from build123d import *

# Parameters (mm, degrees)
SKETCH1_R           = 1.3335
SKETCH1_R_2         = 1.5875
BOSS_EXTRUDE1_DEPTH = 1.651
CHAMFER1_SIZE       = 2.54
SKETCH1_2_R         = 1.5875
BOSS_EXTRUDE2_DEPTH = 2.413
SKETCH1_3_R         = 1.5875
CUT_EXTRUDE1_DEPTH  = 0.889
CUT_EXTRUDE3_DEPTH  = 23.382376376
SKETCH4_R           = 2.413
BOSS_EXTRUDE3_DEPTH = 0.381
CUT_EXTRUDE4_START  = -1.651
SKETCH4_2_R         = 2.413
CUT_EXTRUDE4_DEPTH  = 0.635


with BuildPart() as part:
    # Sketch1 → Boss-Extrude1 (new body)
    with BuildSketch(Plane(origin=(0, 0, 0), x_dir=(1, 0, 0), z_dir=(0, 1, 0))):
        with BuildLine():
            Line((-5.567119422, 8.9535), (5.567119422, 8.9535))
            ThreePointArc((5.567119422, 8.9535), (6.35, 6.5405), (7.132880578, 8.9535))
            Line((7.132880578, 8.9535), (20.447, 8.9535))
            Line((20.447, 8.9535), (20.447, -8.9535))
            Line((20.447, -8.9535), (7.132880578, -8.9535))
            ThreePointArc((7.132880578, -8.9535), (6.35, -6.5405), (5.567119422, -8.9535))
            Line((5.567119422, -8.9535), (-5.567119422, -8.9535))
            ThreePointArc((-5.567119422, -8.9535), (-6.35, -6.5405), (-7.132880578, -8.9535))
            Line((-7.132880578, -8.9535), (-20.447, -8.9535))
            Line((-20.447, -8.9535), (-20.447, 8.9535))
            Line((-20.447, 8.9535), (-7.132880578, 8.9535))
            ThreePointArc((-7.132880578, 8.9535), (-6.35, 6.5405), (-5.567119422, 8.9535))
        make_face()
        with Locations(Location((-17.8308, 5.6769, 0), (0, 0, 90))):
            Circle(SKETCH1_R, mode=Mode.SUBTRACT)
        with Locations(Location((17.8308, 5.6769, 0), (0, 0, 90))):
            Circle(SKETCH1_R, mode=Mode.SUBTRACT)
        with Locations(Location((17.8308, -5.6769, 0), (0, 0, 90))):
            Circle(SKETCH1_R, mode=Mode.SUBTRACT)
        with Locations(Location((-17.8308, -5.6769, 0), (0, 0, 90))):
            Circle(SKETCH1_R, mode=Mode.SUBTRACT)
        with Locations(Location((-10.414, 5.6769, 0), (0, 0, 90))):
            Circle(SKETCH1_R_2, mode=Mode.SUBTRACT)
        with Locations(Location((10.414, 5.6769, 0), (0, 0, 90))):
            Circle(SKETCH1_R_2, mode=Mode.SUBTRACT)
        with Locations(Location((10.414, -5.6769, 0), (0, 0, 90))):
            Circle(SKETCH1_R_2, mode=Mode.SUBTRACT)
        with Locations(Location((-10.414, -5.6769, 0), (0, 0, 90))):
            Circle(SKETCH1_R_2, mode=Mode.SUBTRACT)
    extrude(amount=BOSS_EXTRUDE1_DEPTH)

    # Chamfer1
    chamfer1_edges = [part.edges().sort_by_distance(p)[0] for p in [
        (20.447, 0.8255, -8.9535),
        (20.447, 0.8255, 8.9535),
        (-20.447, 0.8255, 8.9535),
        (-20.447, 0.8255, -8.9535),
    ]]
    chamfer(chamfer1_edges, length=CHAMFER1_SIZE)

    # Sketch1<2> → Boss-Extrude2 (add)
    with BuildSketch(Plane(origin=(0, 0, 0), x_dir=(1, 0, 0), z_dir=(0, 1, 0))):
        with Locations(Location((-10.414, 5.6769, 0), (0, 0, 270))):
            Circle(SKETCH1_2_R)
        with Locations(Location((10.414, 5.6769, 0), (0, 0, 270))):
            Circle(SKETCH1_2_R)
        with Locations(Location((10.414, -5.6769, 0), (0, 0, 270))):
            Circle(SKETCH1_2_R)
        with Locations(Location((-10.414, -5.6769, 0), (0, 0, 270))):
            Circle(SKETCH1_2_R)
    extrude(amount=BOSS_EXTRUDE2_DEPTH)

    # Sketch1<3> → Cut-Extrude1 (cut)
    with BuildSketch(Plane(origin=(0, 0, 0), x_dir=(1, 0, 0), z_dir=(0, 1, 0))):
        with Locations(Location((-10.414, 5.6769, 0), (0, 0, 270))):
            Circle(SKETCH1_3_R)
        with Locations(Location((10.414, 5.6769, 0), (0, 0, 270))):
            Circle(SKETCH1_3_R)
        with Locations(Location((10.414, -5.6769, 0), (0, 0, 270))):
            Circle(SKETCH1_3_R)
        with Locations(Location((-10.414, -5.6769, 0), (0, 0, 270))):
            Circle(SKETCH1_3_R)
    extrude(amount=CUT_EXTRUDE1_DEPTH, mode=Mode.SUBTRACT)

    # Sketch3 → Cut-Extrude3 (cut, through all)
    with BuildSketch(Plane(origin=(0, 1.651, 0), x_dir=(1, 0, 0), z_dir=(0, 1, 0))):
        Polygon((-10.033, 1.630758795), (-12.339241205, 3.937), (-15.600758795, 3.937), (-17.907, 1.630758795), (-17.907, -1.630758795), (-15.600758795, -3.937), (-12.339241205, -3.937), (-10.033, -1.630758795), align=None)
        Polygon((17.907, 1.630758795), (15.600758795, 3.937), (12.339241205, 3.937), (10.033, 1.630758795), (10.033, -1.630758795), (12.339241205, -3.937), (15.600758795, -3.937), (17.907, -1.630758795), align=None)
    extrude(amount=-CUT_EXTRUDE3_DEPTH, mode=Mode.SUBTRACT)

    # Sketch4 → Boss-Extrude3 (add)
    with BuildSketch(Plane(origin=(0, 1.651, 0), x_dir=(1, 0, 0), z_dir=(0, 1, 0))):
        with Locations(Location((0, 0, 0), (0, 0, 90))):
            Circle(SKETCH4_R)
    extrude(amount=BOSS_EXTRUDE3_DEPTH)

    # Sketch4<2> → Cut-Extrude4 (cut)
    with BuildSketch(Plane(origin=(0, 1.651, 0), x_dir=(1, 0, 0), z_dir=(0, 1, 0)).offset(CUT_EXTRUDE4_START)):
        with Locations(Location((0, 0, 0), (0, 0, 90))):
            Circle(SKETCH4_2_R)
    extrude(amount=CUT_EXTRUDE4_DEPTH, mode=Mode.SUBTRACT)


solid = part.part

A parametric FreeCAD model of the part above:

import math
import FreeCAD as App
import Part
import Sketcher
from FreeCAD import Vector
Q = App.Units.Quantity


def edges_at(feature, points):
    """Names of the edges that pass closest to the given points."""
    edges = feature.Shape.Edges
    near = lambda p: min(range(len(edges)), key=lambda i: edges[i].distToShape(Part.Vertex(*p))[0])
    return sorted({f"Edge{near(p) + 1}" for p in points})

doc = App.newDocument("Part")
body = doc.addObject("PartDesign::Body", "Body")

# Sketch on XZ plane
sketch1 = body.newObject("Sketcher::SketchObject", "Sketch")
sketch1.AttachmentSupport = (doc.getObject("XZ_Plane"), [""])
sketch1.MapMode = "FlatFace"
sketch1.addGeometry(Part.LineSegment(Vector(5.6, -9, 0), Vector(-5.6, -9, 0)), False)
sketch1.addGeometry(Part.ArcOfCircle(Part.Circle(Vector(-6.3, -7.9, 0), Vector(0, 0, 1), 1.3), math.radians(-54), math.radians(234)), False)
sketch1.addGeometry(Part.LineSegment(Vector(-7.1, -9, 0), Vector(-20.4, -9, 0)), False)
sketch1.addGeometry(Part.LineSegment(Vector(-20.4, -9, 0), Vector(-20.4, 9, 0)), False)
sketch1.addGeometry(Part.LineSegment(Vector(-20.4, 9, 0), Vector(-7.1, 9, 0)), False)
sketch1.addGeometry(Part.ArcOfCircle(Part.Circle(Vector(-6.3, 7.9, 0), Vector(0, 0, 1), 1.3), math.radians(126), math.radians(414)), False)
sketch1.addGeometry(Part.LineSegment(Vector(-5.6, 9, 0), Vector(5.6, 9, 0)), False)
sketch1.addGeometry(Part.ArcOfCircle(Part.Circle(Vector(6.3, 7.9, 0), Vector(0, 0, 1), 1.3), math.radians(126), math.radians(414)), False)
sketch1.addGeometry(Part.LineSegment(Vector(7.1, 9, 0), Vector(20.4, 9, 0)), False)
sketch1.addGeometry(Part.LineSegment(Vector(20.4, 9, 0), Vector(20.4, -9, 0)), False)
sketch1.addGeometry(Part.LineSegment(Vector(20.4, -9, 0), Vector(7.1, -9, 0)), False)
sketch1.addGeometry(Part.ArcOfCircle(Part.Circle(Vector(6.3, -7.9, 0), Vector(0, 0, 1), 1.3), math.radians(-54), math.radians(234)), False)
sketch1.addGeometry(Part.Circle(Vector(17.8, 5.7, 0), Vector(0, 0, 1), 1.3), False)
sketch1.addGeometry(Part.Circle(Vector(10.4, 5.7, 0), Vector(0, 0, 1), 1.6), False)
sketch1.addGeometry(Part.Circle(Vector(-10.4, 5.7, 0), Vector(0, 0, 1), 1.6), False)
sketch1.addGeometry(Part.Circle(Vector(-17.8, 5.7, 0), Vector(0, 0, 1), 1.3), False)
sketch1.addGeometry(Part.Circle(Vector(17.8, -5.7, 0), Vector(0, 0, 1), 1.3), False)
sketch1.addGeometry(Part.Circle(Vector(10.4, -5.7, 0), Vector(0, 0, 1), 1.6), False)
sketch1.addGeometry(Part.Circle(Vector(-10.4, -5.7, 0), Vector(0, 0, 1), 1.6), False)
sketch1.addGeometry(Part.Circle(Vector(-17.8, -5.7, 0), Vector(0, 0, 1), 1.3), False)
sketch1.addConstraint(Sketcher.Constraint("Coincident", 0, 2, 1, 1))
sketch1.addConstraint(Sketcher.Constraint("Coincident", 1, 2, 2, 1))
sketch1.addConstraint(Sketcher.Constraint("Coincident", 2, 2, 3, 1))
sketch1.addConstraint(Sketcher.Constraint("Coincident", 3, 2, 4, 1))
sketch1.addConstraint(Sketcher.Constraint("Coincident", 4, 2, 5, 1))
sketch1.addConstraint(Sketcher.Constraint("Coincident", 5, 2, 6, 1))
sketch1.addConstraint(Sketcher.Constraint("Coincident", 6, 2, 7, 1))
sketch1.addConstraint(Sketcher.Constraint("Coincident", 7, 2, 8, 1))
sketch1.addConstraint(Sketcher.Constraint("Coincident", 8, 2, 9, 1))
sketch1.addConstraint(Sketcher.Constraint("Coincident", 9, 2, 10, 1))
sketch1.addConstraint(Sketcher.Constraint("Coincident", 10, 2, 11, 1))
sketch1.addConstraint(Sketcher.Constraint("Coincident", 11, 2, 0, 1))
sketch1.addConstraint(Sketcher.Constraint("Horizontal", 0))
sketch1.addConstraint(Sketcher.Constraint("Horizontal", 2))
sketch1.addConstraint(Sketcher.Constraint("Vertical", 3))
sketch1.addConstraint(Sketcher.Constraint("Horizontal", 4))
sketch1.addConstraint(Sketcher.Constraint("Horizontal", 6))
sketch1.addConstraint(Sketcher.Constraint("Horizontal", 8))
sketch1.addConstraint(Sketcher.Constraint("Vertical", 9))
sketch1.addConstraint(Sketcher.Constraint("Horizontal", 10))
sketch1.addConstraint(Sketcher.Constraint("Equal", 1, 5))
sketch1.addConstraint(Sketcher.Constraint("Equal", 5, 7))
sketch1.addConstraint(Sketcher.Constraint("Equal", 7, 11))
sketch1.addConstraint(Sketcher.Constraint("Equal", 11, 12))
sketch1.addConstraint(Sketcher.Constraint("Equal", 13, 14))
sketch1.addConstraint(Sketcher.Constraint("Equal", 12, 15))
sketch1.addConstraint(Sketcher.Constraint("Equal", 15, 16))
sketch1.addConstraint(Sketcher.Constraint("Equal", 14, 17))
sketch1.addConstraint(Sketcher.Constraint("Equal", 17, 18))
sketch1.addConstraint(Sketcher.Constraint("Equal", 16, 19))
sketch1.addConstraint(Sketcher.Constraint("Symmetric", 1, 3, 7, 3, -1, 1))
sketch1.addConstraint(Sketcher.Constraint("Symmetric", 5, 3, 11, 3, -1, 1))
sketch1.addConstraint(Sketcher.Constraint("Symmetric", 15, 3, 16, 3, -1, 1))
sketch1.addConstraint(Sketcher.Constraint("Symmetric", 14, 3, 17, 3, -1, 1))
sketch1.addConstraint(Sketcher.Constraint("Symmetric", 13, 3, 18, 3, -1, 1))
sketch1.addConstraint(Sketcher.Constraint("Symmetric", 12, 3, 19, 3, -1, 1))
sketch1.addConstraint(Sketcher.Constraint("Symmetric", 2, 2, 8, 2, -1, 1))
sketch1.addConstraint(Sketcher.Constraint("Symmetric", 5, 3, 7, 3, -2))
sketch1.addConstraint(Sketcher.Constraint("Symmetric", 13, 3, 14, 3, -2))
sketch1.addConstraint(Sketcher.Constraint("Symmetric", 12, 3, 15, 3, -2))
sketch1.addConstraint(Sketcher.Constraint("Horizontal", 12, 3, 13, 3))
sketch1.addConstraint(Sketcher.Constraint("Horizontal", 0, 2, 1, 2))
sketch1.addConstraint(Sketcher.Constraint("Horizontal", 4, 2, 5, 2))
sketch1.addConstraint(Sketcher.Constraint("Horizontal", 6, 2, 7, 2))
sketch1.addConstraint(Sketcher.Constraint("Horizontal", 2, 2, 9, 2))
sketch1.addConstraint(Sketcher.Constraint("Diameter", 12, Q("0.105 in")))
sketch1.addConstraint(Sketcher.Constraint("Diameter", 13, Q("0.125 in")))
sketch1.addConstraint(Sketcher.Constraint("DistanceX", 5, 3, 7, 3, Q("0.5 in")))
sketch1.addConstraint(Sketcher.Constraint("DistanceY", 3, 1, 3, 2, Q("0.705 in")))
sketch1.addConstraint(Sketcher.Constraint("DistanceY", 1, 3, -1, 1, Q("0.31 in")))
sketch1.addConstraint(Sketcher.Constraint("DistanceX", -1, 1, 13, 3, Q("0.41 in")))
sketch1.addConstraint(Sketcher.Constraint("DistanceX", -1, 1, 12, 3, Q("0.702 in")))
sketch1.addConstraint(Sketcher.Constraint("DistanceX", 2, 2, -1, 1, Q("0.805 in")))
sketch1.addConstraint(Sketcher.Constraint("DistanceY", 16, 3, 12, 3, Q("0.447 in")))
pad1 = body.newObject("PartDesign::Pad", "Pad")
pad1.Profile = sketch1
pad1.Length = Q("0.065 in")
pad1.Reversed = True
doc.recompute()

chamfer = body.newObject("PartDesign::Chamfer", "Chamfer")
chamfer.Base = (pad1, edges_at(pad1, [
    (20.447, 0.826, -8.954),
    (20.447, 0.826, 8.954),
    (-20.447, 0.826, 8.954),
    (-20.447, 0.826, -8.954),
]))
chamfer.Size = Q("0.1 in")

# Sketch on XZ plane
sketch2 = body.newObject("Sketcher::SketchObject", "Sketch001")
sketch2.AttachmentSupport = (doc.getObject("XZ_Plane"), [""])
sketch2.MapMode = "FlatFace"
sketch2.addGeometry(Part.Circle(Vector(-10.4, -5.7, 0), Vector(0, 0, 1), 1.6), False)
sketch2.addGeometry(Part.Circle(Vector(10.4, -5.7, 0), Vector(0, 0, 1), 1.6), False)
sketch2.addGeometry(Part.Circle(Vector(10.4, 5.7, 0), Vector(0, 0, 1), 1.6), False)
sketch2.addGeometry(Part.Circle(Vector(-10.4, 5.7, 0), Vector(0, 0, 1), 1.6), False)
sketch2.addConstraint(Sketcher.Constraint("Equal", 0, 1))
sketch2.addConstraint(Sketcher.Constraint("Equal", 1, 2))
sketch2.addConstraint(Sketcher.Constraint("Equal", 2, 3))
sketch2.addConstraint(Sketcher.Constraint("Symmetric", 0, 3, 2, 3, -1, 1))
sketch2.addConstraint(Sketcher.Constraint("Symmetric", 1, 3, 3, 3, -1, 1))
sketch2.addConstraint(Sketcher.Constraint("Symmetric", 0, 3, 1, 3, -2))
sketch2.addConstraint(Sketcher.Constraint("Diameter", 0, Q("0.125 in")))
sketch2.addConstraint(Sketcher.Constraint("DistanceX", 0, 3, -1, 1, Q("0.41 in")))
sketch2.addConstraint(Sketcher.Constraint("DistanceY", 1, 3, 2, 3, Q("0.447 in")))
pad2 = body.newObject("PartDesign::Pad", "Pad001")
pad2.Profile = sketch2
pad2.Length = Q("0.095 in")
pad2.Reversed = True

# Sketch on XZ plane
sketch3 = body.newObject("Sketcher::SketchObject", "Sketch002")
sketch3.AttachmentSupport = (doc.getObject("XZ_Plane"), [""])
sketch3.MapMode = "FlatFace"
sketch3.addGeometry(Part.Circle(Vector(-10.4, -5.7, 0), Vector(0, 0, 1), 1.6), False)
sketch3.addGeometry(Part.Circle(Vector(10.4, -5.7, 0), Vector(0, 0, 1), 1.6), False)
sketch3.addGeometry(Part.Circle(Vector(10.4, 5.7, 0), Vector(0, 0, 1), 1.6), False)
sketch3.addGeometry(Part.Circle(Vector(-10.4, 5.7, 0), Vector(0, 0, 1), 1.6), False)
sketch3.addConstraint(Sketcher.Constraint("Equal", 0, 1))
sketch3.addConstraint(Sketcher.Constraint("Equal", 1, 2))
sketch3.addConstraint(Sketcher.Constraint("Equal", 2, 3))
sketch3.addConstraint(Sketcher.Constraint("Symmetric", 0, 3, 2, 3, -1, 1))
sketch3.addConstraint(Sketcher.Constraint("Symmetric", 1, 3, 3, 3, -1, 1))
sketch3.addConstraint(Sketcher.Constraint("Symmetric", 0, 3, 1, 3, -2))
sketch3.addConstraint(Sketcher.Constraint("Diameter", 0, Q("0.125 in")))
sketch3.addConstraint(Sketcher.Constraint("DistanceX", 0, 3, -1, 1, Q("0.41 in")))
sketch3.addConstraint(Sketcher.Constraint("DistanceY", 1, 3, 2, 3, Q("0.447 in")))
pocket1 = body.newObject("PartDesign::Pocket", "Pocket")
pocket1.Profile = sketch3
pocket1.Length = Q("0.035 in")

# Sketch on XZ plane
sketch4 = body.newObject("Sketcher::SketchObject", "Sketch003")
sketch4.AttachmentSupport = (doc.getObject("XZ_Plane"), [""])
sketch4.MapMode = "FlatFace"
sketch4.AttachmentOffset = App.Placement(Vector(0, 0, -0.065 * 25.4), App.Rotation())
sketch4.addGeometry(Part.LineSegment(Vector(-10, -1.6, 0), Vector(-12.3, -3.9, 0)), False)
sketch4.addGeometry(Part.LineSegment(Vector(-12.3, -3.9, 0), Vector(-15.6, -3.9, 0)), False)
sketch4.addGeometry(Part.LineSegment(Vector(-15.6, -3.9, 0), Vector(-17.9, -1.6, 0)), False)
sketch4.addGeometry(Part.LineSegment(Vector(-17.9, -1.6, 0), Vector(-17.9, 1.6, 0)), False)
sketch4.addGeometry(Part.LineSegment(Vector(-17.9, 1.6, 0), Vector(-15.6, 3.9, 0)), False)
sketch4.addGeometry(Part.LineSegment(Vector(-15.6, 3.9, 0), Vector(-12.3, 3.9, 0)), False)
sketch4.addGeometry(Part.LineSegment(Vector(-12.3, 3.9, 0), Vector(-10, 1.6, 0)), False)
sketch4.addGeometry(Part.LineSegment(Vector(-10, 1.6, 0), Vector(-10, -1.6, 0)), False)
sketch4.addGeometry(Part.LineSegment(Vector(17.9, -1.6, 0), Vector(15.6, -3.9, 0)), False)
sketch4.addGeometry(Part.LineSegment(Vector(15.6, -3.9, 0), Vector(12.3, -3.9, 0)), False)
sketch4.addGeometry(Part.LineSegment(Vector(12.3, -3.9, 0), Vector(10, -1.6, 0)), False)
sketch4.addGeometry(Part.LineSegment(Vector(10, -1.6, 0), Vector(10, 1.6, 0)), False)
sketch4.addGeometry(Part.LineSegment(Vector(10, 1.6, 0), Vector(12.3, 3.9, 0)), False)
sketch4.addGeometry(Part.LineSegment(Vector(12.3, 3.9, 0), Vector(15.6, 3.9, 0)), False)
sketch4.addGeometry(Part.LineSegment(Vector(15.6, 3.9, 0), Vector(17.9, 1.6, 0)), False)
sketch4.addGeometry(Part.LineSegment(Vector(17.9, 1.6, 0), Vector(17.9, -1.6, 0)), False)
sketch4.addConstraint(Sketcher.Constraint("Coincident", 0, 2, 1, 1))
sketch4.addConstraint(Sketcher.Constraint("Coincident", 1, 2, 2, 1))
sketch4.addConstraint(Sketcher.Constraint("Coincident", 2, 2, 3, 1))
sketch4.addConstraint(Sketcher.Constraint("Coincident", 3, 2, 4, 1))
sketch4.addConstraint(Sketcher.Constraint("Coincident", 4, 2, 5, 1))
sketch4.addConstraint(Sketcher.Constraint("Coincident", 5, 2, 6, 1))
sketch4.addConstraint(Sketcher.Constraint("Coincident", 6, 2, 7, 1))
sketch4.addConstraint(Sketcher.Constraint("Coincident", 7, 2, 0, 1))
sketch4.addConstraint(Sketcher.Constraint("Coincident", 8, 2, 9, 1))
sketch4.addConstraint(Sketcher.Constraint("Coincident", 9, 2, 10, 1))
sketch4.addConstraint(Sketcher.Constraint("Coincident", 10, 2, 11, 1))
sketch4.addConstraint(Sketcher.Constraint("Coincident", 11, 2, 12, 1))
sketch4.addConstraint(Sketcher.Constraint("Coincident", 12, 2, 13, 1))
sketch4.addConstraint(Sketcher.Constraint("Coincident", 13, 2, 14, 1))
sketch4.addConstraint(Sketcher.Constraint("Coincident", 14, 2, 15, 1))
sketch4.addConstraint(Sketcher.Constraint("Coincident", 15, 2, 8, 1))
sketch4.addConstraint(Sketcher.Constraint("Horizontal", 1))
sketch4.addConstraint(Sketcher.Constraint("Vertical", 3))
sketch4.addConstraint(Sketcher.Constraint("Horizontal", 5))
sketch4.addConstraint(Sketcher.Constraint("Vertical", 7))
sketch4.addConstraint(Sketcher.Constraint("Horizontal", 9))
sketch4.addConstraint(Sketcher.Constraint("Vertical", 11))
sketch4.addConstraint(Sketcher.Constraint("Horizontal", 13))
sketch4.addConstraint(Sketcher.Constraint("Vertical", 15))
sketch4.addConstraint(Sketcher.Constraint("Symmetric", 4, 2, 8, 2, -1, 1))
sketch4.addConstraint(Sketcher.Constraint("Symmetric", 6, 2, 10, 2, -1, 1))
sketch4.addConstraint(Sketcher.Constraint("Symmetric", 0, 2, 12, 2, -1, 1))
sketch4.addConstraint(Sketcher.Constraint("Symmetric", 2, 2, 14, 2, -1, 1))
sketch4.addConstraint(Sketcher.Constraint("Symmetric", 1, 2, 8, 2, -2))
sketch4.addConstraint(Sketcher.Constraint("Perpendicular", 0, 2))
sketch4.addConstraint(Sketcher.Constraint("Perpendicular", 2, 4))
sketch4.addConstraint(Sketcher.Constraint("Perpendicular", 4, 6))
sketch4.addConstraint(Sketcher.Constraint("Perpendicular", 6, 8))
sketch4.addConstraint(Sketcher.Constraint("Perpendicular", 8, 10))
sketch4.addConstraint(Sketcher.Constraint("Perpendicular", 10, 12))
sketch4.addConstraint(Sketcher.Constraint("Perpendicular", 12, 14))
sketch4.addConstraint(Sketcher.Constraint("Horizontal", 3, 2, 6, 2))
sketch4.addConstraint(Sketcher.Constraint("Horizontal", 2, 2, 7, 2))
sketch4.addConstraint(Sketcher.Constraint("Horizontal", 7, 2, 10, 2))
sketch4.addConstraint(Sketcher.Constraint("Equal", 13, 3))
sketch4.addConstraint(Sketcher.Constraint("DistanceX", 0, 2, 8, 2, Q("1.1 in")))
sketch4.addConstraint(Sketcher.Constraint("DistanceY", 1, 2, 4, 2, Q("0.31 in")))
sketch4.addConstraint(Sketcher.Constraint("DistanceX", 1, 2, 1, 1, Q("3.261518 mm")))
pocket2 = body.newObject("PartDesign::Pocket", "Pocket001")
pocket2.Profile = sketch4
pocket2.Type = "ThroughAll"
pocket2.Reversed = True

# Sketch on XZ plane
sketch5 = body.newObject("Sketcher::SketchObject", "Sketch004")
sketch5.AttachmentSupport = (doc.getObject("XZ_Plane"), [""])
sketch5.MapMode = "FlatFace"
sketch5.AttachmentOffset = App.Placement(Vector(0, 0, -0.065 * 25.4), App.Rotation())
sketch5.addGeometry(Part.Circle(Vector(0, 0, 0), Vector(0, 0, 1), 2.4), False)
sketch5.addConstraint(Sketcher.Constraint("Coincident", 0, 3, -1, 1))
sketch5.addConstraint(Sketcher.Constraint("Diameter", 0, Q("0.19 in")))
pad3 = body.newObject("PartDesign::Pad", "Pad002")
pad3.Profile = sketch5
pad3.Length = Q("0.015 in")
pad3.Reversed = True

# Sketch on XZ plane
sketch6 = body.newObject("Sketcher::SketchObject", "Sketch005")
sketch6.AttachmentSupport = (doc.getObject("XZ_Plane"), [""])
sketch6.MapMode = "FlatFace"
sketch6.addGeometry(Part.Circle(Vector(0, 0, 0), Vector(0, 0, 1), 2.4), False)
sketch6.addConstraint(Sketcher.Constraint("Coincident", 0, 3, -1, 1))
sketch6.addConstraint(Sketcher.Constraint("Diameter", 0, Q("0.19 in")))
pocket3 = body.newObject("PartDesign::Pocket", "Pocket002")
pocket3.Profile = sketch6
pocket3.Length = Q("0.025 in")

doc.recompute()
